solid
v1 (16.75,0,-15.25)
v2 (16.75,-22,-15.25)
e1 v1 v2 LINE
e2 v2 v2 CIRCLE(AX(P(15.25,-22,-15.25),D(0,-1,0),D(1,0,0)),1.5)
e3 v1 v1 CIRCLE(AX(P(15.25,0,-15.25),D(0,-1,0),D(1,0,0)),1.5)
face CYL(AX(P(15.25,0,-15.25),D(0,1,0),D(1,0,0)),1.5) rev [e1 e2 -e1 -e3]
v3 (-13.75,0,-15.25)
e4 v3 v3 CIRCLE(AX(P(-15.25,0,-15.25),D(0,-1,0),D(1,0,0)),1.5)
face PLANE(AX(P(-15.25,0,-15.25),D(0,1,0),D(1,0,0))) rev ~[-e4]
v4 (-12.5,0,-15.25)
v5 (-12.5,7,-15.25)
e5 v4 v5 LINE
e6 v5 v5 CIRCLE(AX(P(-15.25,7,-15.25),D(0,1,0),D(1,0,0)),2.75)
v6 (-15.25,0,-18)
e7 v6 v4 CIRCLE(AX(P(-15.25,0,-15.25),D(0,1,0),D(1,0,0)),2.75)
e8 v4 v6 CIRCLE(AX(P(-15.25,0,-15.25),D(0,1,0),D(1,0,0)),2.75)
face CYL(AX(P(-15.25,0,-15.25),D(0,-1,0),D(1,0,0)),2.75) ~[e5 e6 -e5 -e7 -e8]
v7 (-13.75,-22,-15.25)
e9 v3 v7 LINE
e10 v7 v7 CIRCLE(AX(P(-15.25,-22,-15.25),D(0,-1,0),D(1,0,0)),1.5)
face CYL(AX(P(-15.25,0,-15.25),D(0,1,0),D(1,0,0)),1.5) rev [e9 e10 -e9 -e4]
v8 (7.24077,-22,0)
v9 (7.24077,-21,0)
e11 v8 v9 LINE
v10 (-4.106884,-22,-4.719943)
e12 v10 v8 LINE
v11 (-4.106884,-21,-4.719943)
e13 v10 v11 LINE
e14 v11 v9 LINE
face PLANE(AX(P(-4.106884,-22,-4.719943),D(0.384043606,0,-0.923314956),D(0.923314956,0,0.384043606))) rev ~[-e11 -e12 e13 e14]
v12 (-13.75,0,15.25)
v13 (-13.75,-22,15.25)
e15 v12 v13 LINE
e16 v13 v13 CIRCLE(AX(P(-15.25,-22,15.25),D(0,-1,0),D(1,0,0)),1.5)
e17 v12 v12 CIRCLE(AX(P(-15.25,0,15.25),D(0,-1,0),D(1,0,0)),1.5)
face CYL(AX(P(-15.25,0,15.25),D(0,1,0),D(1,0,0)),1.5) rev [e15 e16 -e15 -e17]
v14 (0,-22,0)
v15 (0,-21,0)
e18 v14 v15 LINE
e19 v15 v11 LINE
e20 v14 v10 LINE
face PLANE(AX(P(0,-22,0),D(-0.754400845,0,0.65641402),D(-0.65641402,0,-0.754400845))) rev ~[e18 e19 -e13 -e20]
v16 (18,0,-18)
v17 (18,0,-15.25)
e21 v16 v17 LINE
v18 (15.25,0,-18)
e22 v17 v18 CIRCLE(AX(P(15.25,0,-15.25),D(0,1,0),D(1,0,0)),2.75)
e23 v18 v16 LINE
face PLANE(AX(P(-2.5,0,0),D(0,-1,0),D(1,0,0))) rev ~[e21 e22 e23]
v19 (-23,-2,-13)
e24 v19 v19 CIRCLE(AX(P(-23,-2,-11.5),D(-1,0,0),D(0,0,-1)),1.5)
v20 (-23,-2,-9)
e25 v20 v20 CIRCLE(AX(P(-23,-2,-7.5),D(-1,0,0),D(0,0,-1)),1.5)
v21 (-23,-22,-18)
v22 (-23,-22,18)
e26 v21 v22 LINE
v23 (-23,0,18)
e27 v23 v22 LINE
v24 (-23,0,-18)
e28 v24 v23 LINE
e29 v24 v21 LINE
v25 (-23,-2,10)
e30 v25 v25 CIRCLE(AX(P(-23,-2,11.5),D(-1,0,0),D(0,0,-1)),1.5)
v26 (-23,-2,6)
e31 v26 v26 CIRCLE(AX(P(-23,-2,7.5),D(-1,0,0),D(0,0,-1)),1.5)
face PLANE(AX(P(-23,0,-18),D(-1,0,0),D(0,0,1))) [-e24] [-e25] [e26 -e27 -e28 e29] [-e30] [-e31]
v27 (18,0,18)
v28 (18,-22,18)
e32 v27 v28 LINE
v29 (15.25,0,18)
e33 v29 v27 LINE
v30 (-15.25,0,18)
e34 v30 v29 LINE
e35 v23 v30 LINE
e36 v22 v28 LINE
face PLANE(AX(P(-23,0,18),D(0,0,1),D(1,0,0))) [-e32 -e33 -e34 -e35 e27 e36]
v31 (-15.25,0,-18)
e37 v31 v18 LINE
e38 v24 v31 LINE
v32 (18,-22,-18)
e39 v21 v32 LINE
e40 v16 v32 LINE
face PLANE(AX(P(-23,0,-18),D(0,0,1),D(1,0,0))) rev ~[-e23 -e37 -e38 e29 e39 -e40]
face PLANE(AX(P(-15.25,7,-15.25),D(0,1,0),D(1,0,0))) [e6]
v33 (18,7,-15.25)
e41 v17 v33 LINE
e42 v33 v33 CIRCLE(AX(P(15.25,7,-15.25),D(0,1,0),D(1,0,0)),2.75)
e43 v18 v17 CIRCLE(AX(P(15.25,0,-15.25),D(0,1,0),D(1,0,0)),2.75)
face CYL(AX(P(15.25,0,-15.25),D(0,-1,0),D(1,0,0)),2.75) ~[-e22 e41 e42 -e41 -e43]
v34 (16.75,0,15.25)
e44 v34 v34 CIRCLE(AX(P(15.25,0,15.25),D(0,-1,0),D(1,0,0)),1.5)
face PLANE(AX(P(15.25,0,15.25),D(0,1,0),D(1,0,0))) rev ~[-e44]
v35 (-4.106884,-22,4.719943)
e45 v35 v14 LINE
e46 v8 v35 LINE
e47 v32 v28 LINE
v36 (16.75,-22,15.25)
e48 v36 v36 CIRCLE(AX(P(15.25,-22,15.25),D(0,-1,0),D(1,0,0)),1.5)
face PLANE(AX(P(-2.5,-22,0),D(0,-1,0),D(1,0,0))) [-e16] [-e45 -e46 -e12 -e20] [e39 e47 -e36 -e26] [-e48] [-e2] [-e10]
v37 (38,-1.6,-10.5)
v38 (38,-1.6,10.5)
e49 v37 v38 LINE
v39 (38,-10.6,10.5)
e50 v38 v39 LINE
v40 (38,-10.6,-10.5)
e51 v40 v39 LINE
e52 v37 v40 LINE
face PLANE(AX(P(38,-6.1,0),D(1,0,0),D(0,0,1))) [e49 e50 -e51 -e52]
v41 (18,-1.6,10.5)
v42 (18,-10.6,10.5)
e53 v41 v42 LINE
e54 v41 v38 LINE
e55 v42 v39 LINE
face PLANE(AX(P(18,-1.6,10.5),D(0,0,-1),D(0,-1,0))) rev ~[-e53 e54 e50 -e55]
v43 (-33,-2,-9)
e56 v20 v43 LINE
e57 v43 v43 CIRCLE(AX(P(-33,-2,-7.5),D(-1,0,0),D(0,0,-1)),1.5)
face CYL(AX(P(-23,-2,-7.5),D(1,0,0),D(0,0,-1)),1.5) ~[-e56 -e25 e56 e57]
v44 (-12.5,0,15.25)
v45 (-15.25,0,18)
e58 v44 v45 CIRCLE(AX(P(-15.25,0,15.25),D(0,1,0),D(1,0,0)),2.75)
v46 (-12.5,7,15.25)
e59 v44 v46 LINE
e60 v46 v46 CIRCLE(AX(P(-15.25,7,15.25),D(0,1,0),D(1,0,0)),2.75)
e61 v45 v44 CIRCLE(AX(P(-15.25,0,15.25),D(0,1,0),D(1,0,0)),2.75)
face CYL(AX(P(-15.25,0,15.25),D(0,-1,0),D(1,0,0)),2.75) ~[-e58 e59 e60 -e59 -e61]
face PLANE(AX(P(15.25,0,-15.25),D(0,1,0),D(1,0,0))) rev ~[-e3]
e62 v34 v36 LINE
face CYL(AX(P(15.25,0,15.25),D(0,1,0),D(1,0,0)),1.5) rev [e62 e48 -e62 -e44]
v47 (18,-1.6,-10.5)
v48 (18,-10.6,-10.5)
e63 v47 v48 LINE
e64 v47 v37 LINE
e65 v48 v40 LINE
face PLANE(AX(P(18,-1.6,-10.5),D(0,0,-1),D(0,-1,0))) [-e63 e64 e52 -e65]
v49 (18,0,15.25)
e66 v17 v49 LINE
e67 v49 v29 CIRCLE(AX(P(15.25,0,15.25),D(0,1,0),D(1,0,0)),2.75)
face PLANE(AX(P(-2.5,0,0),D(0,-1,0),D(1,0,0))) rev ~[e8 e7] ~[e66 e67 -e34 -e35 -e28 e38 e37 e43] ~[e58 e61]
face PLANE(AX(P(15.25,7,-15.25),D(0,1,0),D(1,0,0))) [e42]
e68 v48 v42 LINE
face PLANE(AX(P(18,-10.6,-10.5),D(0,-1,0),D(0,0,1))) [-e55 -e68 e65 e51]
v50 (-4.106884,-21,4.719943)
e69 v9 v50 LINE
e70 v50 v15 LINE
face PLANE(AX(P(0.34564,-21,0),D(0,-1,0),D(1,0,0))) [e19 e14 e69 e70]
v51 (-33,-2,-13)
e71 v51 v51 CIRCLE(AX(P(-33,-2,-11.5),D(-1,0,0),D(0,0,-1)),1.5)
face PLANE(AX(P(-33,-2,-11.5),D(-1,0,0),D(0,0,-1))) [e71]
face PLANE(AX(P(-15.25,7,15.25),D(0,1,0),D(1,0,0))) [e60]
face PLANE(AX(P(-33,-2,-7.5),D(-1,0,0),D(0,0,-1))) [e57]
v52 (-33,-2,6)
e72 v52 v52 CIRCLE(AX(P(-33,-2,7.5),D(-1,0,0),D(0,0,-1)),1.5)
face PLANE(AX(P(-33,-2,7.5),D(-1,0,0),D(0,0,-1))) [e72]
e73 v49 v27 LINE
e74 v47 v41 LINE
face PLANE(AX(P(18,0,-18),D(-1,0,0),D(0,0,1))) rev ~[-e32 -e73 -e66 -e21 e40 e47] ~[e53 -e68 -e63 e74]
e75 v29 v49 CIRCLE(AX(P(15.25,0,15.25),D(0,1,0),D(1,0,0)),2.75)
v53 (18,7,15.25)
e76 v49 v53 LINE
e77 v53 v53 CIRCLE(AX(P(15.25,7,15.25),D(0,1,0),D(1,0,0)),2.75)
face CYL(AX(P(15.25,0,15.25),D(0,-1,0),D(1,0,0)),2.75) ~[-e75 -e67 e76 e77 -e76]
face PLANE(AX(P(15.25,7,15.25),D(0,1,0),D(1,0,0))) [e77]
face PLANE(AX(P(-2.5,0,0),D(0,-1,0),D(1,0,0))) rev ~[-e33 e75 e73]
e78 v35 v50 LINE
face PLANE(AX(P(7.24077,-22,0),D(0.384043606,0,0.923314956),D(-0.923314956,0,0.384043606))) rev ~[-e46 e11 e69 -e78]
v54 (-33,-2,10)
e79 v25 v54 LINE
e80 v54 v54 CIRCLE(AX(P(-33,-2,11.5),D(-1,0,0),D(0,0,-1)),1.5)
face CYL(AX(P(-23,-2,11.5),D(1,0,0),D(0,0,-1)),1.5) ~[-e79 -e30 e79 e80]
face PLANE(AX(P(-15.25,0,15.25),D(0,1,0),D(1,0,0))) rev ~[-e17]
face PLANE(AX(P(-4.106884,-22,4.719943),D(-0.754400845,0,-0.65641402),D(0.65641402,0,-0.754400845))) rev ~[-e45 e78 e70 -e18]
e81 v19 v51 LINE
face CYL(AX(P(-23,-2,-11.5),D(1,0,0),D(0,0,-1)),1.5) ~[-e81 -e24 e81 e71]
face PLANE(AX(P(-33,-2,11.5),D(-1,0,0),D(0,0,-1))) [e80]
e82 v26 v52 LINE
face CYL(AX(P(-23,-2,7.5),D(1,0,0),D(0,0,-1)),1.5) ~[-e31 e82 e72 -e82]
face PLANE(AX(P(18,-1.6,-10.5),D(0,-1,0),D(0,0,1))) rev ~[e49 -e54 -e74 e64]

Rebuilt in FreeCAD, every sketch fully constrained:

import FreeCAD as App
import Part
import Sketcher
from FreeCAD import Vector
Q = App.Units.Quantity


def add_polygon(sketch, points):
    """Adds a closed chain of lines whose ends are joined by coincident constraints."""
    first, n = sketch.GeometryCount, len(points)
    for a, b in zip(points, points[1:] + points[:1]):
        sketch.addGeometry(Part.LineSegment(App.Vector(*a, 0), App.Vector(*b, 0)), False)
    for i in range(n):
        sketch.addConstraint(Sketcher.Constraint("Coincident", first + i, 2, first + (i + 1) % n, 1))

doc = App.newDocument("Part")
body = doc.addObject("PartDesign::Body", "Body")

sketch1 = body.newObject("Sketcher::SketchObject", "Sketch")
sketch1.AttachmentSupport = (doc.getObject("XZ_Plane"), [""])
sketch1.MapMode = "FlatFace"
add_polygon(sketch1, [(-23, 18), (-23, -18), (18, -18), (18, 18)])
sketch1.addGeometry(Part.Circle(Vector(-15.2, -15.2, 0), Vector(0, 0, 1), 1.5), False)
sketch1.addGeometry(Part.Circle(Vector(15.2, -15.2, 0), Vector(0, 0, 1), 1.5), False)
sketch1.addGeometry(Part.Circle(Vector(-15.2, 15.2, 0), Vector(0, 0, 1), 1.5), False)
sketch1.addGeometry(Part.Circle(Vector(15.2, 15.2, 0), Vector(0, 0, 1), 1.5), False)
sketch1.addConstraint(Sketcher.Constraint("Vertical", 0))
sketch1.addConstraint(Sketcher.Constraint("Horizontal", 1))
sketch1.addConstraint(Sketcher.Constraint("Vertical", 2))
sketch1.addConstraint(Sketcher.Constraint("Horizontal", 3))
sketch1.addConstraint(Sketcher.Constraint("Equal", 4, 5))
sketch1.addConstraint(Sketcher.Constraint("Equal", 5, 6))
sketch1.addConstraint(Sketcher.Constraint("Equal", 6, 7))
sketch1.addConstraint(Sketcher.Constraint("Symmetric", 5, 3, 6, 3, -1, 1))
sketch1.addConstraint(Sketcher.Constraint("Symmetric", 4, 3, 7, 3, -1, 1))
sketch1.addConstraint(Sketcher.Constraint("Symmetric", 4, 3, 5, 3, -2))
sketch1.addConstraint(Sketcher.Constraint("Diameter", 4, Q("3 mm")))
sketch1.addConstraint(Sketcher.Constraint("DistanceX", 1, 1, 1, 2, Q("41 mm")))
sketch1.addConstraint(Sketcher.Constraint("DistanceY", 0, 2, 0, 1, Q("36 mm")))
sketch1.addConstraint(Sketcher.Constraint("DistanceX", 0, 2, -1, 1, Q("23 mm")))
sketch1.addConstraint(Sketcher.Constraint("DistanceY", 0, 2, -1, 1, Q("18 mm")))
sketch1.addConstraint(Sketcher.Constraint("DistanceX", 4, 3, 5, 3, Q("30.5 mm")))
sketch1.addConstraint(Sketcher.Constraint("DistanceY", 4, 3, 6, 3, Q("30.5 mm")))
pad1 = body.newObject("PartDesign::Pad", "Pad")
pad1.Profile = sketch1
pad1.Length = 22

sketch2 = body.newObject("Sketcher::SketchObject", "Sketch001")
sketch2.AttachmentSupport = (doc.getObject("XZ_Plane"), [""])
sketch2.MapMode = "FlatFace"
sketch2.addGeometry(Part.Circle(Vector(15.2, -15.2, 0), Vector(0, 0, 1), 2.8), False)
sketch2.addGeometry(Part.Circle(Vector(15.2, 15.2, 0), Vector(0, 0, 1), 2.8), False)
sketch2.addGeometry(Part.Circle(Vector(-15.2, 15.2, 0), Vector(0, 0, 1), 2.8), False)
sketch2.addGeometry(Part.Circle(Vector(-15.2, -15.2, 0), Vector(0, 0, 1), 2.8), False)
sketch2.addConstraint(Sketcher.Constraint("Equal", 0, 1))
sketch2.addConstraint(Sketcher.Constraint("Equal", 1, 2))
sketch2.addConstraint(Sketcher.Constraint("Equal", 2, 3))
sketch2.addConstraint(Sketcher.Constraint("Symmetric", 0, 3, 2, 3, -1, 1))
sketch2.addConstraint(Sketcher.Constraint("Symmetric", 1, 3, 3, 3, -1, 1))
sketch2.addConstraint(Sketcher.Constraint("Symmetric", 1, 3, 2, 3, -2))
sketch2.addConstraint(Sketcher.Constraint("Diameter", 0, Q("5.5 mm")))
sketch2.addConstraint(Sketcher.Constraint("DistanceY", 0, 3, 1, 3, Q("30.5 mm")))
sketch2.addConstraint(Sketcher.Constraint("DistanceX", 2, 3, 1, 3, Q("30.5 mm")))
pad2 = body.newObject("PartDesign::Pad", "Pad001")
pad2.Profile = sketch2
pad2.Length = 7
pad2.Reversed = True

sketch3 = body.newObject("Sketcher::SketchObject", "Sketch002")
sketch3.AttachmentSupport = (doc.getObject("YZ_Plane"), [""])
sketch3.MapMode = "FlatFace"
sketch3.AttachmentOffset = App.Placement(Vector(0, 0, 18), App.Rotation())
add_polygon(sketch3, [(-11, -10), (-2, -10), (-2, 10), (-11, 10)])
sketch3.addConstraint(Sketcher.Constraint("Horizontal", 0))
sketch3.addConstraint(Sketcher.Constraint("Vertical", 1))
sketch3.addConstraint(Sketcher.Constraint("Horizontal", 2))
sketch3.addConstraint(Sketcher.Constraint("Vertical", 3))
sketch3.addConstraint(Sketcher.Constraint("DistanceX", 0, 1, 0, 2, Q("9 mm")))
sketch3.addConstraint(Sketcher.Constraint("DistanceY", 1, 1, 1, 2, Q("21 mm")))
sketch3.addConstraint(Sketcher.Constraint("DistanceX", 0, 2, -1, 1, Q("1.6 mm")))
sketch3.addConstraint(Sketcher.Constraint("DistanceY", 0, 2, -1, 1, Q("10.5 mm")))
pad3 = body.newObject("PartDesign::Pad", "Pad002")
pad3.Profile = sketch3
pad3.Length = 20

sketch4 = body.newObject("Sketcher::SketchObject", "Sketch003")
sketch4.AttachmentSupport = (doc.getObject("YZ_Plane"), [""])
sketch4.MapMode = "FlatFace"
sketch4.AttachmentOffset = App.Placement(Vector(0, 0, -23), App.Rotation())
sketch4.addGeometry(Part.Circle(Vector(-2, 11.5, 0), Vector(0, 0, 1), 1.5), False)
sketch4.addGeometry(Part.Circle(Vector(-2, 7.5, 0), Vector(0, 0, 1), 1.5), False)
sketch4.addGeometry(Part.Circle(Vector(-2, -7.5, 0), Vector(0, 0, 1), 1.5), False)
sketch4.addGeometry(Part.Circle(Vector(-2, -11.5, 0), Vector(0, 0, 1), 1.5), False)
sketch4.addConstraint(Sketcher.Constraint("Equal", 0, 1))
sketch4.addConstraint(Sketcher.Constraint("Equal", 1, 2))
sketch4.addConstraint(Sketcher.Constraint("Equal", 2, 3))
sketch4.addConstraint(Sketcher.Constraint("Symmetric", 1, 3, 2, 3, -1))
sketch4.addConstraint(Sketcher.Constraint("Symmetric", 0, 3, 3, 3, -1))
sketch4.addConstraint(Sketcher.Constraint("Vertical", 0, 3, 1, 3))
sketch4.addConstraint(Sketcher.Constraint("Diameter", 0, Q("3 mm")))
sketch4.addConstraint(Sketcher.Constraint("DistanceX", 0, 3, -1, 1, Q("2 mm")))
sketch4.addConstraint(Sketcher.Constraint("DistanceY", 1, 3, 0, 3, Q("4 mm")))
sketch4.addConstraint(Sketcher.Constraint("DistanceY", 2, 3, 1, 3, Q("15 mm")))
pad4 = body.newObject("PartDesign::Pad", "Pad003")
pad4.Profile = sketch4
pad4.Length = 10
pad4.Reversed = True

sketch5 = body.newObject("Sketcher::SketchObject", "Sketch004")
sketch5.AttachmentSupport = (doc.getObject("XZ_Plane"), [""])
sketch5.MapMode = "FlatFace"
sketch5.AttachmentOffset = App.Placement(Vector(0, 0, 22), App.Rotation())
add_polygon(sketch5, [(-4, -5), (7, 0), (-4, 5), (0, 0)])
sketch5.addConstraint(Sketcher.Constraint("Coincident", 2, 2, -1, 1))
sketch5.addConstraint(Sketcher.Constraint("Symmetric", 1, 2, 3, 2, -1))
sketch5.addConstraint(Sketcher.Constraint("PointOnObject", 0, 2, -1))
sketch5.addConstraint(Sketcher.Constraint("DistanceX", -1, 1, 0, 2, Q("7.24077 mm")))
sketch5.addConstraint(Sketcher.Constraint("Distance", 0, Q("12.290123 mm")))
sketch5.addConstraint(Sketcher.Constraint("Distance", 2, Q("6.256545 mm")))
pocket1 = body.newObject("PartDesign::Pocket", "Pocket")
pocket1.Profile = sketch5
pocket1.Length = 1

doc.recompute()
